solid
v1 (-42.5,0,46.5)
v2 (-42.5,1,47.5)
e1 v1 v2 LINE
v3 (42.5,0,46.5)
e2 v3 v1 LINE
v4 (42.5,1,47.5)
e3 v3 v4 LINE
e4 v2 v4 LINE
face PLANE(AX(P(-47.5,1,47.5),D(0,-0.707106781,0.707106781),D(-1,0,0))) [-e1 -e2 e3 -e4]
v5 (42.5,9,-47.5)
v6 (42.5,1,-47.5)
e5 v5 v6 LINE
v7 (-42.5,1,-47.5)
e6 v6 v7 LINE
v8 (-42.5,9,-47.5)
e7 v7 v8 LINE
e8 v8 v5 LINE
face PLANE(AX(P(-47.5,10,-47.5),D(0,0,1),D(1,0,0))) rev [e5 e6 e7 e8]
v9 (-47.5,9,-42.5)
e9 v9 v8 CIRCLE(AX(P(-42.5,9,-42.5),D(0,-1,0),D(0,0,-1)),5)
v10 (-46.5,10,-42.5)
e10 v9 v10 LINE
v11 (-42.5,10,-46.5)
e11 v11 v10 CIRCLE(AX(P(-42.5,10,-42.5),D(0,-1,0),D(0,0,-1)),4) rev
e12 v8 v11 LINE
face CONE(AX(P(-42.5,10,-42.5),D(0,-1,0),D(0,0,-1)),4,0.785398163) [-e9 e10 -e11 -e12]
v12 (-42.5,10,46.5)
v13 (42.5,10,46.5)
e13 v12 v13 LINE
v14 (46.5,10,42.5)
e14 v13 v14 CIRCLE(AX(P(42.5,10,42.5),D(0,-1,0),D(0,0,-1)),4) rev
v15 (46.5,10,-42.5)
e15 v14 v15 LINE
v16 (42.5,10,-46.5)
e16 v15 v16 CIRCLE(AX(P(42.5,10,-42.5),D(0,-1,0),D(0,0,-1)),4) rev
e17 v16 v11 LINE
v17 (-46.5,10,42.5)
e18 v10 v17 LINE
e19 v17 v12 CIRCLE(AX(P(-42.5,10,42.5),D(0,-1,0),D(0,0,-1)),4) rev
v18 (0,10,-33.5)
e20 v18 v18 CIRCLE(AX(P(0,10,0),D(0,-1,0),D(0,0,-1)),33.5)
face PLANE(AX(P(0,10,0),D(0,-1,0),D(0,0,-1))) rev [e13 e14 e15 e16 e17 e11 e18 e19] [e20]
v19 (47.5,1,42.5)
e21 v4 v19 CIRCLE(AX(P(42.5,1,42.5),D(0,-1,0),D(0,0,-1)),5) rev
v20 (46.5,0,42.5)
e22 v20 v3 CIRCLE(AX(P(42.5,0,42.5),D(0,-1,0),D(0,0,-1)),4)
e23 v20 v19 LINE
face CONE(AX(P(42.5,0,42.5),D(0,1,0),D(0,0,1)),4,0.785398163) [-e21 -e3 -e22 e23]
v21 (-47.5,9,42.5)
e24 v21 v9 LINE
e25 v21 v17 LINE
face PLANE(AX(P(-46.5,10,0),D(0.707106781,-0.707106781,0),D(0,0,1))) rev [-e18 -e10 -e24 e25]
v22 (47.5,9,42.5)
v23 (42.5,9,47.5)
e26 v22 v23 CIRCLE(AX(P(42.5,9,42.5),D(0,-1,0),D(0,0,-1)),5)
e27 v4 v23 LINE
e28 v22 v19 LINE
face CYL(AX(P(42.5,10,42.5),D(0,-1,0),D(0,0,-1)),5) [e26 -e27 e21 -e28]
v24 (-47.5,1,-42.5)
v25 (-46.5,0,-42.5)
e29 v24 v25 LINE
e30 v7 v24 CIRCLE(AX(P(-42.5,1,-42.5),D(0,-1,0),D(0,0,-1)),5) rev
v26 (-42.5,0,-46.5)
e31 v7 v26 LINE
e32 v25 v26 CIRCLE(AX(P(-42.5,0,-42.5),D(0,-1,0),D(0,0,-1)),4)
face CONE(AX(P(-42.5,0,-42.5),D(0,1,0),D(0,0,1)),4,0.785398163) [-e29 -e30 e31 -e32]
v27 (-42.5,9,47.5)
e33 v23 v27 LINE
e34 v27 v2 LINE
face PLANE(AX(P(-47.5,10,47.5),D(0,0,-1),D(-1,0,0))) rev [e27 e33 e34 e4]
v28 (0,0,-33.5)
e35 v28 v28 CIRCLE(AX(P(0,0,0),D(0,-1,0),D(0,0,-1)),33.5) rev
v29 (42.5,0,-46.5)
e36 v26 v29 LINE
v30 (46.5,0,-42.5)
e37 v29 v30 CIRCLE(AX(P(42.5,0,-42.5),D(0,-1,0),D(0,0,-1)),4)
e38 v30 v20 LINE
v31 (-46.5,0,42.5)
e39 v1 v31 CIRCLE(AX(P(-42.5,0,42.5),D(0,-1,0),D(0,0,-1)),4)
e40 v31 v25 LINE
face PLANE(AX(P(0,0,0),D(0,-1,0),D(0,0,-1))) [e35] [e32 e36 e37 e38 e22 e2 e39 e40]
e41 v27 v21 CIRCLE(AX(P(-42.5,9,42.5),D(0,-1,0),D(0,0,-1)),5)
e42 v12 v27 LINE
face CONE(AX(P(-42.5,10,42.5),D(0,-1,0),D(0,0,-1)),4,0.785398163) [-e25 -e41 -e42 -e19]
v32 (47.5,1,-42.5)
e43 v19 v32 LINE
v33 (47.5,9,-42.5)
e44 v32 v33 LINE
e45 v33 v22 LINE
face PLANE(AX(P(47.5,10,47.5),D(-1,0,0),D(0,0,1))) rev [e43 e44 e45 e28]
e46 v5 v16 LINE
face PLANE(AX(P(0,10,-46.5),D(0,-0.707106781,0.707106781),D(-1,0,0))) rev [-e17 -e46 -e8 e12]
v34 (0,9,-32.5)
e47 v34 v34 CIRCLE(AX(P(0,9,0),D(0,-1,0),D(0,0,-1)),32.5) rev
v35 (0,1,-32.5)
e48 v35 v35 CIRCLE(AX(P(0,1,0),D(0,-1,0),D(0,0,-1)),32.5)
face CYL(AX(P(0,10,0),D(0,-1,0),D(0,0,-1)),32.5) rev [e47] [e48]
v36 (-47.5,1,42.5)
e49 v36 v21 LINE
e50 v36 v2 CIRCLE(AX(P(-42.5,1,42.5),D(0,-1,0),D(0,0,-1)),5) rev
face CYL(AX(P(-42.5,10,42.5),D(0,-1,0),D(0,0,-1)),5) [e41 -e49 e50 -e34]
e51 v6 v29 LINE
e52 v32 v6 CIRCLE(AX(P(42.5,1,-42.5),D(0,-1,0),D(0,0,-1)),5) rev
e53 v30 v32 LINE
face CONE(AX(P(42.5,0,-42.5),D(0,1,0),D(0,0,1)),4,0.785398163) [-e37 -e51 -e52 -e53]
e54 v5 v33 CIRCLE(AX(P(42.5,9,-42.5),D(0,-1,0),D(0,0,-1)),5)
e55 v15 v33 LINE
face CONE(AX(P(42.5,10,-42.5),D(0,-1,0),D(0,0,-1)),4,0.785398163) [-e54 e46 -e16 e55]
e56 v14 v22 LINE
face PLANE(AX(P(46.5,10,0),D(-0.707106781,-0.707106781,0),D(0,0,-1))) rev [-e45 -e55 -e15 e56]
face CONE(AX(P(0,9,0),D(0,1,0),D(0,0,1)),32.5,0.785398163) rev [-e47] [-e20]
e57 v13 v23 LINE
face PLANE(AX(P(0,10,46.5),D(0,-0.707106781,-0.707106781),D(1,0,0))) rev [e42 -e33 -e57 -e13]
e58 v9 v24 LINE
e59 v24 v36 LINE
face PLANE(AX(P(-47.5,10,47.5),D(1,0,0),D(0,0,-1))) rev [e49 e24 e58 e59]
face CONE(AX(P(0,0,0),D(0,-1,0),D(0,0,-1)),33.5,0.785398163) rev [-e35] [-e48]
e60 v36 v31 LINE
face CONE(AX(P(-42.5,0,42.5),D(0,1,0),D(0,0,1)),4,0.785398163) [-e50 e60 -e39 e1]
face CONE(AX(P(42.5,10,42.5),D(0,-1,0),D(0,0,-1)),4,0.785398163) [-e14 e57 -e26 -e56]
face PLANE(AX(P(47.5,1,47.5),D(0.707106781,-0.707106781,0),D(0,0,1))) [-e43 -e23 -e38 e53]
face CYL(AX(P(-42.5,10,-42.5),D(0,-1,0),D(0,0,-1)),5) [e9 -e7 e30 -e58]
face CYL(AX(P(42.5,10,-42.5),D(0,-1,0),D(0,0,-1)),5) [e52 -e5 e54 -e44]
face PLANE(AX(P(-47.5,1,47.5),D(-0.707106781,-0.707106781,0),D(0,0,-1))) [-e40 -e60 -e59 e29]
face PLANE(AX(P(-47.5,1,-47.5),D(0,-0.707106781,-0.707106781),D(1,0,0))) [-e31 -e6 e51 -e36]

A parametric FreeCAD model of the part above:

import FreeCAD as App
import Part
import Sketcher
from FreeCAD import Vector


def edges_at(feature, points):
    """Names of the edges that pass closest to the given points."""
    edges = feature.Shape.Edges
    near = lambda p: min(range(len(edges)), key=lambda i: edges[i].distToShape(Part.Vertex(*p))[0])
    return sorted({f"Edge{near(p) + 1}" for p in points})

doc = App.newDocument("Part")
body = doc.addObject("PartDesign::Body", "Body")

# Sketch on XZ plane
sketch1 = body.newObject("Sketcher::SketchObject", "Sketch")
sketch1.AttachmentSupport = (doc.getObject("XZ_Plane"), [""])
sketch1.MapMode = "FlatFace"
sketch1.addGeometry(Part.LineSegment(Vector(-48, -48, 0), Vector(-48, 48, 0)), False)
sketch1.addGeometry(Part.LineSegment(Vector(-48, 48, 0), Vector(48, 48, 0)), False)
sketch1.addGeometry(Part.LineSegment(Vector(48, 48, 0), Vector(48, -48, 0)), False)
sketch1.addGeometry(Part.LineSegment(Vector(48, -48, 0), Vector(-48, -48, 0)), False)
sketch1.addGeometry(Part.Circle(Vector(0, 0, 0), Vector(0, 0, 1), 32), False)
sketch1.addConstraint(Sketcher.Constraint("Coincident", 0, 2, 1, 1))
sketch1.addConstraint(Sketcher.Constraint("Coincident", 1, 2, 2, 1))
sketch1.addConstraint(Sketcher.Constraint("Coincident", 2, 2, 3, 1))
sketch1.addConstraint(Sketcher.Constraint("Coincident", 3, 2, 0, 1))
sketch1.addConstraint(Sketcher.Constraint("Vertical", 0))
sketch1.addConstraint(Sketcher.Constraint("Horizontal", 1))
sketch1.addConstraint(Sketcher.Constraint("Vertical", 2))
sketch1.addConstraint(Sketcher.Constraint("Horizontal", 3))
sketch1.addConstraint(Sketcher.Constraint("Coincident", 4, 3, -1, 1))
sketch1.addConstraint(Sketcher.Constraint("Symmetric", 0, 2, 2, 2, -1, 1))
sketch1.addConstraint(Sketcher.Constraint("Equal", 3, 0))
sketch1.addConstraint(Sketcher.Constraint("Diameter", 4, 65.0))
sketch1.addConstraint(Sketcher.Constraint("DistanceX", 1, 1, 1, 2, 95.0))
pad1 = body.newObject("PartDesign::Pad", "Pad")
pad1.Profile = sketch1
pad1.Length = 10
pad1.Reversed = True
doc.recompute()

fillet = body.newObject("PartDesign::Fillet", "Fillet")
fillet.Base = (pad1, edges_at(pad1, [
    (47.5, 5, 47.5),
    (-47.5, 5, 47.5),
    (-47.5, 5, -47.5),
    (47.5, 5, -47.5),
]))
fillet.Radius = 5
doc.recompute()

chamfer = body.newObject("PartDesign::Chamfer", "Chamfer")
chamfer.Base = (fillet, edges_at(fillet, [
    (0, 0, -32.5),
    (0, 10, -32.5),
    (-47.5, 0, 0),
    (-47.5, 10, 0),
    (47.5, 0, 0),
    (0, 0, 47.5),
    (0, 0, -47.5),
    (-46.036, 0, 46.036),
    (46.036, 0, 46.036),
    (46.036, 0, -46.036),
    (-46.036, 0, -46.036),
    (0, 10, -47.5),
    (47.5, 10, 0),
    (0, 10, 47.5),
    (-46.036, 10, 46.036),
    (46.036, 10, 46.036),
    (46.036, 10, -46.036),
    (-46.036, 10, -46.036),
]))
chamfer.Size = 1

doc.recompute()
